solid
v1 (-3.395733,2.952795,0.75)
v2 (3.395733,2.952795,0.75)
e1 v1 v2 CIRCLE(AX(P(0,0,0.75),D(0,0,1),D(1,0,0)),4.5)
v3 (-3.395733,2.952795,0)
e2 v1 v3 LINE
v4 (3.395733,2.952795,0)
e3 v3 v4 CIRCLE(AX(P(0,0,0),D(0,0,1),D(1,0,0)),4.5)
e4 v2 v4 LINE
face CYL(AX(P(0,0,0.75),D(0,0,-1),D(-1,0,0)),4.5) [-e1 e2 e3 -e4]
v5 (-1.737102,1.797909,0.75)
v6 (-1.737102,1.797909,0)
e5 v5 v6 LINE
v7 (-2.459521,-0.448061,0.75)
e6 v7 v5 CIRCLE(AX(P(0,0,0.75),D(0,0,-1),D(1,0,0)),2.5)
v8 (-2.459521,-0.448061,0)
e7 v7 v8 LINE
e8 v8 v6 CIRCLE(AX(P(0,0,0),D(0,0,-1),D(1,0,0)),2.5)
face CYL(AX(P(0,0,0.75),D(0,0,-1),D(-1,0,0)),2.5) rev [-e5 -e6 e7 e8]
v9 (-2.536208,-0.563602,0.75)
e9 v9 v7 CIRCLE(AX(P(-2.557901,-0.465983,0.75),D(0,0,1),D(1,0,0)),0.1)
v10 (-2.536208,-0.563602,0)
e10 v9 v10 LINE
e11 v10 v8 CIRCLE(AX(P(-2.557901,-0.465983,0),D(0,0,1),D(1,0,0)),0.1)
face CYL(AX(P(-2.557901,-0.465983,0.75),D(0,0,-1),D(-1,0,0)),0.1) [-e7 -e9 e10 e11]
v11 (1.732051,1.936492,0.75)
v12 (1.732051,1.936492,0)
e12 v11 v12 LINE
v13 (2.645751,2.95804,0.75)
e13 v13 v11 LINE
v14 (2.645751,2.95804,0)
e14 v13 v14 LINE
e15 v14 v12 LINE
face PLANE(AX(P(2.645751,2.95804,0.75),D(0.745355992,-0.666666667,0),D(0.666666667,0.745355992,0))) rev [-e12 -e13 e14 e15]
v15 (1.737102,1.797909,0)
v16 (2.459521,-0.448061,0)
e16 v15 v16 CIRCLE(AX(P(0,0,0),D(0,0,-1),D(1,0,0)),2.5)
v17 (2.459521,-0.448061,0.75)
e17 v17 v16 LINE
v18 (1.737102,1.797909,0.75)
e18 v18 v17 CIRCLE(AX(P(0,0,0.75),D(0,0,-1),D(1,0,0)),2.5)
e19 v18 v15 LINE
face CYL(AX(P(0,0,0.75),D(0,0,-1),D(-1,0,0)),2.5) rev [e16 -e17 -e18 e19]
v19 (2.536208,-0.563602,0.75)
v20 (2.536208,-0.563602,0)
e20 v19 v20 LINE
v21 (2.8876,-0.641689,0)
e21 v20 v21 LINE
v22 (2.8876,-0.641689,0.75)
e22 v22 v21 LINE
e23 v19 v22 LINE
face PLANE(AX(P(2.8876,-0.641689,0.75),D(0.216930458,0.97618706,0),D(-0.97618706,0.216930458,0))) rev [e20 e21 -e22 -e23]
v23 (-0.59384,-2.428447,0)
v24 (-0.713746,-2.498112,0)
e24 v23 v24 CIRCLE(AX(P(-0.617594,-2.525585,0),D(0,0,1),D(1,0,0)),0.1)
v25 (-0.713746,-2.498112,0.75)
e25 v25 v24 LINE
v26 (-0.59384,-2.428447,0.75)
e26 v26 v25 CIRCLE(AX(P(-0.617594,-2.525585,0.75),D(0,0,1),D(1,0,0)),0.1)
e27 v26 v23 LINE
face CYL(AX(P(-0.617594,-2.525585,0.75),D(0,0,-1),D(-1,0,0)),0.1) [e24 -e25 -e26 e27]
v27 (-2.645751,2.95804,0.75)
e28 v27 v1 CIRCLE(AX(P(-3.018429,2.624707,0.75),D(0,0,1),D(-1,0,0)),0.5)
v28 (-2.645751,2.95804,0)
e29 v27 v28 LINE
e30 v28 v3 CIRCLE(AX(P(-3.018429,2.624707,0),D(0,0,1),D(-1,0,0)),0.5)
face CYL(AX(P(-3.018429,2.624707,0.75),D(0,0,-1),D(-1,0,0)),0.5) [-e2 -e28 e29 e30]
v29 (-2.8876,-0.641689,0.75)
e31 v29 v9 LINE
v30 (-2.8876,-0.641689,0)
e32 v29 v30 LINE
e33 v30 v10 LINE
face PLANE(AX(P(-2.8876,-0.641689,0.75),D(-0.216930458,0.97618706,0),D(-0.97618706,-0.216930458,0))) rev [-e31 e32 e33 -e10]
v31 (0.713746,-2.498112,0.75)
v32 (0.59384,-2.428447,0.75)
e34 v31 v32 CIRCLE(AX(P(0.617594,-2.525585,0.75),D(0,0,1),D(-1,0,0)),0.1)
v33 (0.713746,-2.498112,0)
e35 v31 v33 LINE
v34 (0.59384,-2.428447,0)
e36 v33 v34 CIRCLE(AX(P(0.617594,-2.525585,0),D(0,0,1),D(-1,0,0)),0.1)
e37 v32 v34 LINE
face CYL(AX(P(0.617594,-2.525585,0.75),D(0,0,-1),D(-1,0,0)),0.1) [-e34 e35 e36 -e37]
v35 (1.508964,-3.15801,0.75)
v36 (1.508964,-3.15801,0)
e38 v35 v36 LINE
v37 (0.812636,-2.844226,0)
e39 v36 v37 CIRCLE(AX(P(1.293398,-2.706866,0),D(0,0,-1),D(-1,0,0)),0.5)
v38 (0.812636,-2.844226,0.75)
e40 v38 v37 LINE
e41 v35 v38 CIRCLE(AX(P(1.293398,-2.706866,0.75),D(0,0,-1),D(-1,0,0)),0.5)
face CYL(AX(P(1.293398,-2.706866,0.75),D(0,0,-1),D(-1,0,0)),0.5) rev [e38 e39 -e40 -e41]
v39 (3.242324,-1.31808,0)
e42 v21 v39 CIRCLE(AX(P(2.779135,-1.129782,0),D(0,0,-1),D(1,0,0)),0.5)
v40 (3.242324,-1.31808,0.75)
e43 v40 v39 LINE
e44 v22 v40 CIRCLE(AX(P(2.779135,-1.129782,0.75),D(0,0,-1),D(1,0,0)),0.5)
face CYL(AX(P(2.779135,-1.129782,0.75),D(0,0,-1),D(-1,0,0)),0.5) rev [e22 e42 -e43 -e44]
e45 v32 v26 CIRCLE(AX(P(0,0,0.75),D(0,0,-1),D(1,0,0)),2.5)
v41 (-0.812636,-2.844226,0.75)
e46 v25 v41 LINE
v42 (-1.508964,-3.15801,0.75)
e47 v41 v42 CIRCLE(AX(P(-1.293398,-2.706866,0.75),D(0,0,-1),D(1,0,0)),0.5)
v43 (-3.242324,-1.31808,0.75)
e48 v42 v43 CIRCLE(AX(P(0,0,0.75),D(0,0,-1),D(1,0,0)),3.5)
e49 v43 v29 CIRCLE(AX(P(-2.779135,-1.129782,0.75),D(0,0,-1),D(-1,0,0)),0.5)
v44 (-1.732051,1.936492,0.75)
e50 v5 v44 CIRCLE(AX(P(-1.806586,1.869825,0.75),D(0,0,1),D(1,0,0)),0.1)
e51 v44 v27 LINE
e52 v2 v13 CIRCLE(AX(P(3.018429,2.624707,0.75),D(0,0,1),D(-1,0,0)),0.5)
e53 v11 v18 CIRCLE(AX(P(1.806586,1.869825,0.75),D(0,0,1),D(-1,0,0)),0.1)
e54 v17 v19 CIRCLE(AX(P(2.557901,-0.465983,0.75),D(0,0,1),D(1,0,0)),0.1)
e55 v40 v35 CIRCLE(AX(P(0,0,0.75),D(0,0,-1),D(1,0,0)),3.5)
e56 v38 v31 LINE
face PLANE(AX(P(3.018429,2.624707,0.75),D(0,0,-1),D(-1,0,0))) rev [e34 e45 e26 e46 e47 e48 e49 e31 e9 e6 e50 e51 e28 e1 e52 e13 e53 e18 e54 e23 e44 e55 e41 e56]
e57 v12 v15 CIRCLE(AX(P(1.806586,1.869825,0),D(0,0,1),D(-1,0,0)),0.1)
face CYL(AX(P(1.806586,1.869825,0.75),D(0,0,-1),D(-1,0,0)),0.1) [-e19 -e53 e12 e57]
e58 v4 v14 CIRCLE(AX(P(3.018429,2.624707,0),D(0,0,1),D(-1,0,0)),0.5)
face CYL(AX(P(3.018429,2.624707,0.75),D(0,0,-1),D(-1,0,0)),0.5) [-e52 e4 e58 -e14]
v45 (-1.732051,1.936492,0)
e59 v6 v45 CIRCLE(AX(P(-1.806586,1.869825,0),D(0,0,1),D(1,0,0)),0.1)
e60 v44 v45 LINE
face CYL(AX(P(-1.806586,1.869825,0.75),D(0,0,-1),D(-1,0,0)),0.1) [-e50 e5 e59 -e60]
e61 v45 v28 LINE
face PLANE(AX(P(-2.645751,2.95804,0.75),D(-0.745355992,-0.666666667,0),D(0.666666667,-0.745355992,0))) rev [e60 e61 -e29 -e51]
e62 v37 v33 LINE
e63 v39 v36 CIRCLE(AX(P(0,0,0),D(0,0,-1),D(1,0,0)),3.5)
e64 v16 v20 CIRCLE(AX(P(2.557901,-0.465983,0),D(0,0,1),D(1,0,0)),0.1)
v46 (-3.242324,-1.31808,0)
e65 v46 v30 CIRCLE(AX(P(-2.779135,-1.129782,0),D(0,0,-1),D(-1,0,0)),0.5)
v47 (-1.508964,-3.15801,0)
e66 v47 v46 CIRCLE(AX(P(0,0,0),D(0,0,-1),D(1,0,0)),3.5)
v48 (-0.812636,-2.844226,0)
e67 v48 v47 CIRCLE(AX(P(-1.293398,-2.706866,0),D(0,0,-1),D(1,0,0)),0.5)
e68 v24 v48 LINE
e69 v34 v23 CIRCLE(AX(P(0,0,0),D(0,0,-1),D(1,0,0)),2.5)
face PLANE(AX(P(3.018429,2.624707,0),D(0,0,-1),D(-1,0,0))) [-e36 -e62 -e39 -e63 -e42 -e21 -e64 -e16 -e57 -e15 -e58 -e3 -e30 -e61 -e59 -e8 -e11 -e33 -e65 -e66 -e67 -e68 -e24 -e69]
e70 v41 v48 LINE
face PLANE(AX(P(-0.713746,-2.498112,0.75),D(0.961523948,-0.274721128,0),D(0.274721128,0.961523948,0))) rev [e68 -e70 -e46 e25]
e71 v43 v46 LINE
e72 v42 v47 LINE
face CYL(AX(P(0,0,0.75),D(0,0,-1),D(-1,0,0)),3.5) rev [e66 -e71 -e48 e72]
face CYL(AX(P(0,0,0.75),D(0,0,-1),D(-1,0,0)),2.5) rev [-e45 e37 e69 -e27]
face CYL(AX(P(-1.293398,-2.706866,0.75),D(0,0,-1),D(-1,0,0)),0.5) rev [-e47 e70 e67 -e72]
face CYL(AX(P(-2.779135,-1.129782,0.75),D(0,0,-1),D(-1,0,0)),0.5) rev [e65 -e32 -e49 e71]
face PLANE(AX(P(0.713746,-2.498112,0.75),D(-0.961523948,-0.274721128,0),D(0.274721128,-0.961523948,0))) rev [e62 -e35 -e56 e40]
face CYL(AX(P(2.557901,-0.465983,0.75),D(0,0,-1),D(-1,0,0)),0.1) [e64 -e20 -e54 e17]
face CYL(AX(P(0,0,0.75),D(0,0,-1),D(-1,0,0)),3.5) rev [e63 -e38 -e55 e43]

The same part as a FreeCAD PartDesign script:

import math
import FreeCAD as App
import Part
import Sketcher

doc = App.newDocument("Part")
body = doc.addObject("PartDesign::Body", "Body")

sketch1 = doc.addObject("Sketcher::SketchObject", "Sketch")
body.addObject(sketch1)
sketch1.AttachmentSupport = (doc.XY_Plane, [""])
sketch1.MapMode = "FlatFace"
sketch1.addGeometry([
    Part.LineSegment(App.Vector(0.81, -2.84, 0), App.Vector(0.71, -2.5, 0)),
    Part.ArcOfCircle(Part.Circle(App.Vector(0.62, -2.53, 0), App.Vector(0, 0, 1), 0.1), math.radians(16), math.radians(104)),
    Part.ArcOfCircle(Part.Circle(App.Vector(0, 0, 0), App.Vector(0, 0, 1), 2.5), math.radians(-104), math.radians(-76)),
    Part.ArcOfCircle(Part.Circle(App.Vector(-0.62, -2.53, 0), App.Vector(0, 0, 1), 0.1), math.radians(76), math.radians(164)),
    Part.LineSegment(App.Vector(-0.71, -2.5, 0), App.Vector(-0.81, -2.84, 0)),
    Part.ArcOfCircle(Part.Circle(App.Vector(-1.29, -2.71, 0), App.Vector(0, 0, 1), 0.5), math.radians(-116), math.radians(-16)),
    Part.ArcOfCircle(Part.Circle(App.Vector(0, 0, 0), App.Vector(0, 0, 1), 3.5), math.radians(-158), math.radians(-116)),
    Part.ArcOfCircle(Part.Circle(App.Vector(-2.78, -1.13, 0), App.Vector(0, 0, 1), 0.5), math.radians(103), math.radians(202)),
    Part.LineSegment(App.Vector(-2.89, -0.64, 0), App.Vector(-2.54, -0.56, 0)),
    Part.ArcOfCircle(Part.Circle(App.Vector(-2.56, -0.47, 0), App.Vector(0, 0, 1), 0.1), math.radians(-77), math.radians(10)),
    Part.ArcOfCircle(Part.Circle(App.Vector(0, 0, 0), App.Vector(0, 0, 1), 2.5), math.radians(134), math.radians(190)),
    Part.ArcOfCircle(Part.Circle(App.Vector(-1.81, 1.87, 0), App.Vector(0, 0, 1), 0.1), math.radians(-46), math.radians(42)),
    Part.LineSegment(App.Vector(-1.73, 1.94, 0), App.Vector(-2.65, 2.96, 0)),
    Part.ArcOfCircle(Part.Circle(App.Vector(-3.02, 2.62, 0), App.Vector(0, 0, 1), 0.5), math.radians(42), math.radians(139)),
    Part.ArcOfCircle(Part.Circle(App.Vector(0, 0, 0), App.Vector(0, 0, 1), 4.5), math.radians(139), math.radians(401)),
    Part.ArcOfCircle(Part.Circle(App.Vector(3.02, 2.62, 0), App.Vector(0, 0, 1), 0.5), math.radians(41), math.radians(138)),
    Part.LineSegment(App.Vector(2.65, 2.96, 0), App.Vector(1.73, 1.94, 0)),
    Part.ArcOfCircle(Part.Circle(App.Vector(1.81, 1.87, 0), App.Vector(0, 0, 1), 0.1), math.radians(138), math.radians(226)),
    Part.ArcOfCircle(Part.Circle(App.Vector(0, 0, 0), App.Vector(0, 0, 1), 2.5), math.radians(-10), math.radians(46)),
    Part.ArcOfCircle(Part.Circle(App.Vector(2.56, -0.47, 0), App.Vector(0, 0, 1), 0.1), math.radians(170), math.radians(257)),
    Part.LineSegment(App.Vector(2.54, -0.56, 0), App.Vector(2.89, -0.64, 0)),
    Part.ArcOfCircle(Part.Circle(App.Vector(2.78, -1.13, 0), App.Vector(0, 0, 1), 0.5), math.radians(-22), math.radians(77)),
    Part.ArcOfCircle(Part.Circle(App.Vector(0, 0, 0), App.Vector(0, 0, 1), 3.5), math.radians(-64), math.radians(-22)),
    Part.ArcOfCircle(Part.Circle(App.Vector(1.29, -2.71, 0), App.Vector(0, 0, 1), 0.5), math.radians(-164), math.radians(-64)),
], False)
sketch1.addConstraint([
    Sketcher.Constraint("Tangent", 0, 2, 1, 1),
    Sketcher.Constraint("Tangent", 1, 2, 2, 2),
    Sketcher.Constraint("Tangent", 2, 1, 3, 1),
    Sketcher.Constraint("Tangent", 3, 2, 4, 1),
    Sketcher.Constraint("Tangent", 4, 2, 5, 2),
    Sketcher.Constraint("Tangent", 5, 1, 6, 2),
    Sketcher.Constraint("Tangent", 6, 1, 7, 2),
    Sketcher.Constraint("Tangent", 7, 1, 8, 1),
    Sketcher.Constraint("Tangent", 8, 2, 9, 1),
    Sketcher.Constraint("Tangent", 9, 2, 10, 2),
    Sketcher.Constraint("Tangent", 10, 1, 11, 1),
    Sketcher.Constraint("Tangent", 11, 2, 12, 1),
    Sketcher.Constraint("Tangent", 12, 2, 13, 1),
    Sketcher.Constraint("Tangent", 13, 2, 14, 1),
    Sketcher.Constraint("Tangent", 14, 2, 15, 1),
    Sketcher.Constraint("Tangent", 15, 2, 16, 1),
    Sketcher.Constraint("Tangent", 16, 2, 17, 1),
    Sketcher.Constraint("Tangent", 17, 2, 18, 2),
    Sketcher.Constraint("Tangent", 18, 1, 19, 1),
    Sketcher.Constraint("Tangent", 19, 2, 20, 1),
    Sketcher.Constraint("Tangent", 20, 2, 21, 2),
    Sketcher.Constraint("Tangent", 21, 1, 22, 2),
    Sketcher.Constraint("Tangent", 22, 1, 23, 2),
    Sketcher.Constraint("Tangent", 23, 1, 0, 1),
    Sketcher.Constraint("Coincident", 2, 3, -1, 1),
    Sketcher.Constraint("Coincident", 6, 3, -1, 1),
    Sketcher.Constraint("Coincident", 10, 3, -1, 1),
    Sketcher.Constraint("Coincident", 14, 3, -1, 1),
    Sketcher.Constraint("Coincident", 18, 3, -1, 1),
    Sketcher.Constraint("Coincident", 22, 3, -1, 1),
    Sketcher.Constraint("Equal", 1, 3),
    Sketcher.Constraint("Equal", 5, 7),
    Sketcher.Constraint("Equal", 3, 9),
    Sketcher.Constraint("Equal", 2, 10),
    Sketcher.Constraint("Equal", 9, 11),
    Sketcher.Constraint("Equal", 7, 13),
    Sketcher.Constraint("Equal", 13, 15),
    Sketcher.Constraint("Equal", 11, 17),
    Sketcher.Constraint("Equal", 10, 18),
    Sketcher.Constraint("Equal", 17, 19),
    Sketcher.Constraint("Equal", 15, 21),
    Sketcher.Constraint("Equal", 6, 22),
    Sketcher.Constraint("Equal", 21, 23),
    Sketcher.Constraint("Symmetric", 0, 2, 3, 2, -2),
    Sketcher.Constraint("Symmetric", 12, 2, 15, 2, -2),
    Sketcher.Constraint("Symmetric", 8, 2, 19, 2, -2),
    Sketcher.Constraint("Equal", 4, 8),
    Sketcher.Constraint("Radius", 1, 0.1),
    Sketcher.Constraint("Radius", 2, 2.5),
    Sketcher.Constraint("Radius", 5, 0.5),
    Sketcher.Constraint("Radius", 6, 3.5),
    Sketcher.Constraint("Radius", 14, 4.5),
    Sketcher.Constraint("DistanceX", 5, 3, -1, 1, 1.293398),
    Sketcher.Constraint("DistanceX", 9, 3, -1, 1, 2.557901),
    Sketcher.Constraint("DistanceX", 7, 1, -1, 1, 2.8876),
    Sketcher.Constraint("DistanceX", 9, 3, 10, 1, 0.820799),
    Sketcher.Constraint("DistanceX", 12, 2, 11, 2, 0.913701),
])
pad1 = doc.addObject("PartDesign::Pad", "Pad")
body.addObject(pad1)
pad1.Profile = sketch1
pad1.Length = 0.75

doc.recompute()
